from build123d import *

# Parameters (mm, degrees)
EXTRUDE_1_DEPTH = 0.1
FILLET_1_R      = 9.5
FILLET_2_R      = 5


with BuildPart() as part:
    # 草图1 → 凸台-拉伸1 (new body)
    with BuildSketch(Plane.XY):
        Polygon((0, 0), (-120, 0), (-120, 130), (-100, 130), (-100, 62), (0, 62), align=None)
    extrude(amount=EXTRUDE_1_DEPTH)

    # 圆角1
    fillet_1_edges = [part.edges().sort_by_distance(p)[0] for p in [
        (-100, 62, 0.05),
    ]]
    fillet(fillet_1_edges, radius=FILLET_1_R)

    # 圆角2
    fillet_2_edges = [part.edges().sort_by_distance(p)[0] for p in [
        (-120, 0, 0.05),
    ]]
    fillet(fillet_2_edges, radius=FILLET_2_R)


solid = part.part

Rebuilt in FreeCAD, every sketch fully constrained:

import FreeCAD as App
import Part
import Sketcher


def edges_at(feature, points):
    """Names of the edges that pass closest to the given points."""
    edges = feature.Shape.Edges
    near = lambda p: min(range(len(edges)), key=lambda i: edges[i].distToShape(Part.Vertex(*p))[0])
    return sorted({f"Edge{near(p) + 1}" for p in points})


def add_polygon(sketch, points):
    """Adds a closed chain of lines whose ends are joined by coincident constraints."""
    first, n = sketch.GeometryCount, len(points)
    for a, b in zip(points, points[1:] + points[:1]):
        sketch.addGeometry(Part.LineSegment(App.Vector(*a, 0), App.Vector(*b, 0)), False)
    for i in range(n):
        sketch.addConstraint(Sketcher.Constraint("Coincident", first + i, 2, first + (i + 1) % n, 1))

doc = App.newDocument("Part")
params = doc.addObject("Spreadsheet::Sheet", "Params")
for row, (alias, value) in enumerate([
    ("sketch1_width", "120 mm"),
    ("sketch1_width2", "100 mm"),
    ("sketch1_height", "62 mm"),
    ("sketch1_height2", "68 mm"),
    ("pad1_length", "0.1 mm"),
    ("fillet_radius", "9.5 mm"),
    ("fillet2_radius", "5 mm"),
], start=1):
    params.set(f"A{row}", alias)
    params.set(f"B{row}", "=" + value)
    params.setAlias(f"B{row}", alias)

body = doc.addObject("PartDesign::Body", "Body")

# Sketch on XY plane
sketch1 = body.newObject("Sketcher::SketchObject", "Sketch")
sketch1.AttachmentSupport = (doc.getObject("XY_Plane"), [""])
sketch1.MapMode = "FlatFace"
add_polygon(sketch1, [(-120, 0), (0, 0), (0, 62), (-100, 62), (-100, 130), (-120, 130)])  # lines 0-5
sketch1.addConstraint(Sketcher.Constraint("Horizontal", 0))
sketch1.addConstraint(Sketcher.Constraint("Vertical", 1))
sketch1.addConstraint(Sketcher.Constraint("Horizontal", 2))
sketch1.addConstraint(Sketcher.Constraint("Vertical", 3))
sketch1.addConstraint(Sketcher.Constraint("Horizontal", 4))
sketch1.addConstraint(Sketcher.Constraint("Vertical", 5))
sketch1.addConstraint(Sketcher.Constraint("Coincident", 0, 2, -1, 1))
sketch1.addConstraint(Sketcher.Constraint("DistanceX", 0, 1, 0, 2, 120.0))
sketch1.addConstraint(Sketcher.Constraint("DistanceX", 2, 2, 2, 1, 100.0))
sketch1.addConstraint(Sketcher.Constraint("DistanceY", 1, 1, 1, 2, 62.0))
sketch1.addConstraint(Sketcher.Constraint("DistanceY", 3, 1, 3, 2, 68.0))
sketch1.setExpression("Constraints[13]", "Params.sketch1_width")
sketch1.setExpression("Constraints[14]", "Params.sketch1_width2")
sketch1.setExpression("Constraints[15]", "Params.sketch1_height")
sketch1.setExpression("Constraints[16]", "Params.sketch1_height2")
pad1 = body.newObject("PartDesign::Pad", "Pad")
pad1.Profile = sketch1
pad1.setExpression("Length", "Params.pad1_length")
doc.recompute()

fillet = body.newObject("PartDesign::Fillet", "Fillet")
fillet.Base = (pad1, edges_at(pad1, [(-100, 62, 0.05)]))
fillet.setExpression("Radius", "Params.fillet_radius")
doc.recompute()

fillet2 = body.newObject("PartDesign::Fillet", "Fillet001")
fillet2.Base = (fillet, edges_at(fillet, [(-120, 0, 0.05)]))
fillet2.setExpression("Radius", "Params.fillet2_radius")

doc.recompute()
